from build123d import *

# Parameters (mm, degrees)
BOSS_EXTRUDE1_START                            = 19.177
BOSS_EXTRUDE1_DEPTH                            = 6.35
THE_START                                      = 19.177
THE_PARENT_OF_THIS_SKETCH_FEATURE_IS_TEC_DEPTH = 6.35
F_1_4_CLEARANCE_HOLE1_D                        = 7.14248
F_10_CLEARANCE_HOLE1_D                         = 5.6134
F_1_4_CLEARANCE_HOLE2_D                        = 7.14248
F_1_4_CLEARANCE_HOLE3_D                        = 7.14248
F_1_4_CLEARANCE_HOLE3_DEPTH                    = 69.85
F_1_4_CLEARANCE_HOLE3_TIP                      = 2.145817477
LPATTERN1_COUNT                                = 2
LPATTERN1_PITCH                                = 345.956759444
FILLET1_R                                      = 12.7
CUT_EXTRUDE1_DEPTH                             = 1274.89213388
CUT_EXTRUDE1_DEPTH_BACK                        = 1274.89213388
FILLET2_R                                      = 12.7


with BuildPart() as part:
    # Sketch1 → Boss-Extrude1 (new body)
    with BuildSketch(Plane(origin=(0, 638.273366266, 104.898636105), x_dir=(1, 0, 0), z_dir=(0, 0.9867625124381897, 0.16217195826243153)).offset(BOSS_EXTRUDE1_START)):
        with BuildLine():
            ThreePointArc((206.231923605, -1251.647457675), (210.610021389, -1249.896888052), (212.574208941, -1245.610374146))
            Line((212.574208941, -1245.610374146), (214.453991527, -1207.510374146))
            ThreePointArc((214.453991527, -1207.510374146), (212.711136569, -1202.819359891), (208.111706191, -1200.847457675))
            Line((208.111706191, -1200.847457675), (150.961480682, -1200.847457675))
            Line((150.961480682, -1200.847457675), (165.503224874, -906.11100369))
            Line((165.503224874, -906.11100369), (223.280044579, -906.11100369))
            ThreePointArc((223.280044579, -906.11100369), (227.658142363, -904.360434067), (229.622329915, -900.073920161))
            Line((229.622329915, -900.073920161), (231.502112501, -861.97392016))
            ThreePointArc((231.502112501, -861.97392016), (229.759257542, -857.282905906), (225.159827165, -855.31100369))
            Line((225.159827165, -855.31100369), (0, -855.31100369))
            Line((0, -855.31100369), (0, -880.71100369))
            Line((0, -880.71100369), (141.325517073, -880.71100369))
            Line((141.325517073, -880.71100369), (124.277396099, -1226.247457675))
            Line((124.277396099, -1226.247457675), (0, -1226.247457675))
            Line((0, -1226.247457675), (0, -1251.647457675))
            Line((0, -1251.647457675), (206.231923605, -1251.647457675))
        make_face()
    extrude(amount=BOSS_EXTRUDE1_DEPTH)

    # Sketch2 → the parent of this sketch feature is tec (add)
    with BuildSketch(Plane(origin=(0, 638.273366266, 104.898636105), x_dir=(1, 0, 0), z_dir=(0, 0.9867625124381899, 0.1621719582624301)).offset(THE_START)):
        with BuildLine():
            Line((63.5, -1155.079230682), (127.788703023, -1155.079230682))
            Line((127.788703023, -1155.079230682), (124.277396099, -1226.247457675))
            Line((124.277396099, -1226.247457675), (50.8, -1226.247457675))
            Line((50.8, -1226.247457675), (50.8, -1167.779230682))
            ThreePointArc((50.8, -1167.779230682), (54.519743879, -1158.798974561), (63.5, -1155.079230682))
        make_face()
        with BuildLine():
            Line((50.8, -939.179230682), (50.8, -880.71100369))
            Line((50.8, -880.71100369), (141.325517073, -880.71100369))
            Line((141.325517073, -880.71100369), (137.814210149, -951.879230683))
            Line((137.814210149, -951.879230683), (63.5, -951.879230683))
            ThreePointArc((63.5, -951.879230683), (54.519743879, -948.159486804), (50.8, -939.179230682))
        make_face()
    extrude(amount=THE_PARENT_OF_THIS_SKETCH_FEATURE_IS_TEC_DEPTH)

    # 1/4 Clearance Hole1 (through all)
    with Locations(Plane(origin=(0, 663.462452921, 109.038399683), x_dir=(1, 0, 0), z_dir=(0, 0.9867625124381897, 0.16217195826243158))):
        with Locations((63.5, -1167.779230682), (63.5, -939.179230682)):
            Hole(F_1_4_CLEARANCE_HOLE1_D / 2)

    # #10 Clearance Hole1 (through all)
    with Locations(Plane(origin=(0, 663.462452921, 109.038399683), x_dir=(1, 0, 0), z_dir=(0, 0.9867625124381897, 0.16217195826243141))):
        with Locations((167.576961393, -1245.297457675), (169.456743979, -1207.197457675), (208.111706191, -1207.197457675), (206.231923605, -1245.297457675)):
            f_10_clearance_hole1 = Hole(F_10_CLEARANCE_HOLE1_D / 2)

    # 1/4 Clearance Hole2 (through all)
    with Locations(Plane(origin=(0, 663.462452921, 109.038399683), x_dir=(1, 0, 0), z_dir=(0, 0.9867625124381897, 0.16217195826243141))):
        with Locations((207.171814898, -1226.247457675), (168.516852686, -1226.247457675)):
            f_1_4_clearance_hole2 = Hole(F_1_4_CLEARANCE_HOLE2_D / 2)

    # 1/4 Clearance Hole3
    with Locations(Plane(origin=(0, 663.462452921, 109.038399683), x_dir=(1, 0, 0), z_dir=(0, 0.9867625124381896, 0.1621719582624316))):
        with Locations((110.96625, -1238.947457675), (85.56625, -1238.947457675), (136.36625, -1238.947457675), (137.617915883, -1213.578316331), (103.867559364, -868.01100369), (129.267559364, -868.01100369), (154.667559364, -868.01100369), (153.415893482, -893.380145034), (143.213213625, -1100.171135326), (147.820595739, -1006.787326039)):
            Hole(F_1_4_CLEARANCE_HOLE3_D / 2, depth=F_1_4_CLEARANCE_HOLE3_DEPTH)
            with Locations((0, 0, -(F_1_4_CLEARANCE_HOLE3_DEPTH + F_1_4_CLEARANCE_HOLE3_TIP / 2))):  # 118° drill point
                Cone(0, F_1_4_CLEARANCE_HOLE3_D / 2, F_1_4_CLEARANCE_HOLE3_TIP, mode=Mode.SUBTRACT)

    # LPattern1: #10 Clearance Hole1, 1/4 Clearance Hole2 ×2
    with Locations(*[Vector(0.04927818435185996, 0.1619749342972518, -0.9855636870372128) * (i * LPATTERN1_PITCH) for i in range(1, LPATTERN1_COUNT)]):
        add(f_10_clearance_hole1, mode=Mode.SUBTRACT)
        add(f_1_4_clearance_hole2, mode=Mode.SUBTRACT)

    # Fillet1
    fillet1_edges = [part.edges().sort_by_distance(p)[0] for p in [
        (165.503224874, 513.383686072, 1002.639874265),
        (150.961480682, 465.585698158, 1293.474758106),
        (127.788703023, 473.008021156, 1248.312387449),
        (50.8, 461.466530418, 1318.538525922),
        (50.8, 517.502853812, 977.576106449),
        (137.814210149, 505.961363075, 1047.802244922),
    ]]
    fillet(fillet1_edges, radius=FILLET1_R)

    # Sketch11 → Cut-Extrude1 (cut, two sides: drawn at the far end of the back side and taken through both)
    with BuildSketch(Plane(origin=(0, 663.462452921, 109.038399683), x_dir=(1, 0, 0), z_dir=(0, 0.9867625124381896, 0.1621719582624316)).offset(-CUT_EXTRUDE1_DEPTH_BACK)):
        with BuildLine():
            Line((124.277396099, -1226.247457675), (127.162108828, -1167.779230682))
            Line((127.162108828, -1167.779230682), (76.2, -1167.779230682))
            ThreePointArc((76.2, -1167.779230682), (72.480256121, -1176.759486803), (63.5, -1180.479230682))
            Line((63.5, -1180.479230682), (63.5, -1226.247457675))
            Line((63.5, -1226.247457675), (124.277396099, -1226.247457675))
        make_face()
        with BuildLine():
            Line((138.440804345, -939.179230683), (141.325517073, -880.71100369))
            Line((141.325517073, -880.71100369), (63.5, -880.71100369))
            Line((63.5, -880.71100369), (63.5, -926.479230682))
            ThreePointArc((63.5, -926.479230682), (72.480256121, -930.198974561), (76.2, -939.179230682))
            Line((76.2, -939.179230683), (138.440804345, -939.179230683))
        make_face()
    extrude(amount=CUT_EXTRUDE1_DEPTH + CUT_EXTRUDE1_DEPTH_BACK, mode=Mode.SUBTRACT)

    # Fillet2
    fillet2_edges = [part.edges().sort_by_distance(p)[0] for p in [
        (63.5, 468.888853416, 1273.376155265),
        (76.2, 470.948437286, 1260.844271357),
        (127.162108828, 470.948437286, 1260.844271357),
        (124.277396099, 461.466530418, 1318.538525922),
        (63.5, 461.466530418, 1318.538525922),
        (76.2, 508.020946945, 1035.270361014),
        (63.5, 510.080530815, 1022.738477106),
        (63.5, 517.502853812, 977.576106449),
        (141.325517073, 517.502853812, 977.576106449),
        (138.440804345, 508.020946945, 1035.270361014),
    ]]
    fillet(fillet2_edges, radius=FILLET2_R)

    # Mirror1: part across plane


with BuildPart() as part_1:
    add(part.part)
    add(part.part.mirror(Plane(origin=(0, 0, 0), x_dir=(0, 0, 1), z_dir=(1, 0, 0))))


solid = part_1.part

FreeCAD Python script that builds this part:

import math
import FreeCAD as App
import Part
import Sketcher

V = App.Vector
Q = App.Units.Quantity


def edges_at(feature, points):
    """Names of the edges that pass closest to the given points."""
    edges = feature.Shape.Edges
    near = lambda p: min(range(len(edges)), key=lambda i: edges[i].distToShape(Part.Vertex(*p))[0])
    return sorted({f"Edge{near(p) + 1}" for p in points})

doc = App.newDocument("Part")
body = doc.addObject("PartDesign::Body", "Body")

sketch1 = doc.addObject("Sketcher::SketchObject", "Sketch")
body.addObject(sketch1)
sketch1.Placement = App.Placement(V(0, 657.196511, 108.008608), App.Rotation(V(1, 0, 0), V(0, 0.162171958, -0.986762512), V(0, 0.986762512, 0.162171958), "ZXY"))
sketch1.addGeometry([
    Part.ArcOfCircle(Part.Circle(V(206, -1245, 0), V(0, 0, 1), 6), math.radians(-90), math.radians(-3)),
    Part.LineSegment(V(213, -1246, 0), V(214, -1208, 0)),
    Part.ArcOfCircle(Part.Circle(V(208, -1207, 0), V(0, 0, 1), 6), math.radians(-3), math.radians(90)),
    Part.LineSegment(V(208, -1201, 0), V(151, -1201, 0)),
    Part.LineSegment(V(151, -1201, 0), V(166, -906, 0)),
    Part.LineSegment(V(166, -906, 0), V(223, -906, 0)),
    Part.ArcOfCircle(Part.Circle(V(223, -900, 0), V(0, 0, 1), 6), math.radians(-90), math.radians(-3)),
    Part.LineSegment(V(230, -900, 0), V(232, -862, 0)),
    Part.ArcOfCircle(Part.Circle(V(225, -862, 0), V(0, 0, 1), 6), math.radians(-3), math.radians(90)),
    Part.LineSegment(V(225, -855, 0), V(0, -855, 0)),
    Part.LineSegment(V(0, -855, 0), V(0, -881, 0)),
    Part.LineSegment(V(0, -881, 0), V(141, -881, 0)),
    Part.LineSegment(V(141, -881, 0), V(124, -1226, 0)),
    Part.LineSegment(V(124, -1226, 0), V(0, -1226, 0)),
    Part.LineSegment(V(0, -1226, 0), V(0, -1252, 0)),
    Part.LineSegment(V(0, -1252, 0), V(206, -1252, 0)),
], False)
sketch1.addConstraint([
    Sketcher.Constraint("Tangent", 0, 2, 1, 1),
    Sketcher.Constraint("Tangent", 1, 2, 2, 1),
    Sketcher.Constraint("Tangent", 2, 2, 3, 1),
    Sketcher.Constraint("Coincident", 3, 2, 4, 1),
    Sketcher.Constraint("Coincident", 4, 2, 5, 1),
    Sketcher.Constraint("Tangent", 5, 2, 6, 1),
    Sketcher.Constraint("Tangent", 6, 2, 7, 1),
    Sketcher.Constraint("Tangent", 7, 2, 8, 1),
    Sketcher.Constraint("Tangent", 8, 2, 9, 1),
    Sketcher.Constraint("Coincident", 9, 2, 10, 1),
    Sketcher.Constraint("Coincident", 10, 2, 11, 1),
    Sketcher.Constraint("Coincident", 11, 2, 12, 1),
    Sketcher.Constraint("Coincident", 12, 2, 13, 1),
    Sketcher.Constraint("Coincident", 13, 2, 14, 1),
    Sketcher.Constraint("Coincident", 14, 2, 15, 1),
    Sketcher.Constraint("Tangent", 15, 2, 0, 1),
    Sketcher.Constraint("Horizontal", 3),
    Sketcher.Constraint("Horizontal", 5),
    Sketcher.Constraint("Horizontal", 9),
    Sketcher.Constraint("Vertical", 10),
    Sketcher.Constraint("Horizontal", 11),
    Sketcher.Constraint("Horizontal", 13),
    Sketcher.Constraint("Vertical", 14),
    Sketcher.Constraint("Horizontal", 15),
    Sketcher.Constraint("Equal", 0, 2),
    Sketcher.Constraint("Equal", 2, 6),
    Sketcher.Constraint("Equal", 6, 8),
    Sketcher.Constraint("PointOnObject", 9, 2, -2),
    Sketcher.Constraint("PointOnObject", 13, 2, -2),
    Sketcher.Constraint("Parallel", 1, 4),
    Sketcher.Constraint("Parallel", 4, 7),
    Sketcher.Constraint("Parallel", 7, 12),
    Sketcher.Constraint("Equal", 10, 14),
    Sketcher.Constraint("Equal", 1, 7),
    Sketcher.Constraint("DistanceY", 10, 2, 10, 1, Q("1 in")),
    Sketcher.Constraint("Radius", 0, Q("0.25 in")),
    Sketcher.Constraint("DistanceY", 5, 2, 8, 2, Q("2 in")),
    Sketcher.Constraint("DistanceX", 5, 1, 5, 2, 57.77682),
    Sketcher.Constraint("Distance", 12, 345.956759),
    Sketcher.Constraint("DistanceX", 3, 2, 3, 1, 57.150226),
    Sketcher.Constraint("DistanceX", 9, 2, 9, 1, 225.159827),
    Sketcher.Constraint("DistanceX", 11, 1, 11, 2, 141.325517),
    Sketcher.Constraint("DistanceX", 13, 2, 13, 1, 124.277396),
    Sketcher.Constraint("DistanceY", 6, 2, -1, 1, 900.073919),
])
pad1 = doc.addObject("PartDesign::Pad", "Pad")
body.addObject(pad1)
pad1.Profile = sketch1
pad1.Length = Q("0.25 in")

sketch2 = doc.addObject("Sketcher::SketchObject", "Sketch001")
body.addObject(sketch2)
sketch2.Placement = App.Placement(V(0, 657.196511, 108.008608), App.Rotation(V(1, 0, 0), V(0, 0.162171958, -0.986762512), V(0, 0.986762512, 0.162171958), "ZXY"))
sketch2.addGeometry([
    Part.LineSegment(V(128, -1155, 0), V(64, -1155, 0)),
    Part.ArcOfCircle(Part.Circle(V(64, -1168, 0), V(0, 0, 1), 13), math.radians(90), math.radians(180)),
    Part.LineSegment(V(51, -1168, 0), V(51, -1226, 0)),
    Part.LineSegment(V(51, -1226, 0), V(124, -1226, 0)),
    Part.LineSegment(V(124, -1226, 0), V(128, -1155, 0)),
    Part.LineSegment(V(51, -881, 0), V(51, -939, 0)),
    Part.ArcOfCircle(Part.Circle(V(64, -939, 0), V(0, 0, 1), 13), math.radians(180), math.radians(270)),
    Part.LineSegment(V(64, -952, 0), V(138, -952, 0)),
    Part.LineSegment(V(138, -952, 0), V(141, -881, 0)),
    Part.LineSegment(V(141, -881, 0), V(51, -881, 0)),
], False)
sketch2.addConstraint([
    Sketcher.Constraint("Tangent", 0, 2, 1, 1),
    Sketcher.Constraint("Tangent", 1, 2, 2, 1),
    Sketcher.Constraint("Coincident", 2, 2, 3, 1),
    Sketcher.Constraint("Coincident", 3, 2, 4, 1),
    Sketcher.Constraint("Coincident", 4, 2, 0, 1),
    Sketcher.Constraint("Tangent", 5, 2, 6, 1),
    Sketcher.Constraint("Tangent", 6, 2, 7, 1),
    Sketcher.Constraint("Coincident", 7, 2, 8, 1),
    Sketcher.Constraint("Coincident", 8, 2, 9, 1),
    Sketcher.Constraint("Coincident", 9, 2, 5, 1),
    Sketcher.Constraint("Horizontal", 0),
    Sketcher.Constraint("Vertical", 2),
    Sketcher.Constraint("Horizontal", 3),
    Sketcher.Constraint("Vertical", 5),
    Sketcher.Constraint("Horizontal", 7),
    Sketcher.Constraint("Horizontal", 9),
    Sketcher.Constraint("Equal", 1, 6),
    Sketcher.Constraint("Parallel", 4, 8),
    Sketcher.Constraint("Vertical", 1, 3, 6, 3),
    Sketcher.Constraint("Equal", 2, 5),
    Sketcher.Constraint("Radius", 1, Q("0.5 in")),
    Sketcher.Constraint("DistanceX", -1, 1, 1, 2, Q("2 in")),
    Sketcher.Constraint("DistanceY", 1, 3, 6, 3, Q("9 in")),
    Sketcher.Constraint("DistanceX", 7, 1, 7, 2, 74.31421),
    Sketcher.Constraint("DistanceX", 0, 2, 0, 1, 64.288703),
    Sketcher.Constraint("DistanceX", 3, 1, 3, 2, 73.477396),
    Sketcher.Constraint("DistanceY", 2, 2, 2, 1, 58.468227),
    Sketcher.Constraint("DistanceY", 1, 3, -1, 1, 1167.77923),
])
pad2 = doc.addObject("PartDesign::Pad", "Pad001")
body.addObject(pad2)
pad2.Profile = sketch2
pad2.Length = Q("0.25 in")

sketch3 = doc.addObject("Sketcher::SketchObject", "Sketch002")
body.addObject(sketch3)
sketch3.Placement = App.Placement(V(0, 663.462453, 109.0384), App.Rotation(V(1, 0, 0), V(0, 0.162171958, -0.986762512), V(0, 0.986762512, 0.162171958), "ZXY"))
sketch3.addGeometry([
    Part.Circle(V(63.5, -1167.8, 0), V(0, 0, 1), 3.6),
    Part.Circle(V(63.5, -939.2, 0), V(0, 0, 1), 3.6),
], False)
sketch3.addConstraint([
    Sketcher.Constraint("Equal", 0, 1),
    Sketcher.Constraint("Vertical", 0, 3, 1, 3),
    Sketcher.Constraint("DistanceY", 0, 3, 1, 3, Q("9 in")),
    Sketcher.Constraint("Diameter", 0, Q("0.2812 in")),
    Sketcher.Constraint("DistanceX", -1, 1, 0, 3, Q("2.5 in")),
    Sketcher.Constraint("DistanceY", 0, 3, -1, 1, 1167.77923),
])
doc.recompute()
hole = doc.addObject("PartDesign::Hole", "Hole")
body.addObject(hole)
hole.Profile = sketch3
hole.ThreadType = "None"
hole.Diameter = Q("0.2812 in")
hole.DepthType = "ThroughAll"

sketch4 = doc.addObject("Sketcher::SketchObject", "Sketch003")
body.addObject(sketch4)
sketch4.Placement = App.Placement(V(0, 663.462453, 109.0384), App.Rotation(V(1, 0, 0), V(0, 0.162171958, -0.986762512), V(0, 0.986762512, 0.162171958), "ZXY"))
sketch4.addGeometry([
    Part.Circle(V(167.6, -1245.3, 0), V(0, 0, 1), 2.8),
    Part.Circle(V(169.5, -1207.2, 0), V(0, 0, 1), 2.8),
    Part.Circle(V(208.1, -1207.2, 0), V(0, 0, 1), 2.8),
    Part.Circle(V(206.2, -1245.3, 0), V(0, 0, 1), 2.8),
], False)
sketch4.addConstraint([
    Sketcher.Constraint("Equal", 0, 1),
    Sketcher.Constraint("Equal", 1, 2),
    Sketcher.Constraint("Equal", 2, 3),
    Sketcher.Constraint("Horizontal", 1, 3, 2, 3),
    Sketcher.Constraint("Horizontal", 0, 3, 3, 3),
    Sketcher.Constraint("Diameter", 0, Q("0.221 in")),
    Sketcher.Constraint("DistanceY", 0, 3, 1, 3, Q("1.5 in")),
    Sketcher.Constraint("DistanceX", -1, 1, 0, 3, 167.576961),
    Sketcher.Constraint("DistanceX", 1, 3, 3, 3, 36.77518),
    Sketcher.Constraint("DistanceY", 0, 3, -1, 1, 1245.297456),
    Sketcher.Constraint("DistanceX", -1, 1, 1, 3, 169.456744),
    Sketcher.Constraint("DistanceX", -1, 1, 2, 3, 208.111706),
])
doc.recompute()
hole2 = doc.addObject("PartDesign::Hole", "Hole001")
body.addObject(hole2)
hole2.Profile = sketch4
hole2.ThreadType = "None"
hole2.Diameter = Q("0.221 in")
hole2.DepthType = "ThroughAll"

sketch5 = doc.addObject("Sketcher::SketchObject", "Sketch004")
body.addObject(sketch5)
sketch5.Placement = App.Placement(V(0, 663.462453, 109.0384), App.Rotation(V(1, 0, 0), V(0, 0.162171958, -0.986762512), V(0, 0.986762512, 0.162171958), "ZXY"))
sketch5.addGeometry([
    Part.Circle(V(207.2, -1226.2, 0), V(0, 0, 1), 3.6),
    Part.Circle(V(168.5, -1226.2, 0), V(0, 0, 1), 3.6),
], False)
sketch5.addConstraint([
    Sketcher.Constraint("Equal", 0, 1),
    Sketcher.Constraint("Horizontal", 0, 3, 1, 3),
    Sketcher.Constraint("Diameter", 0, Q("0.2812 in")),
    Sketcher.Constraint("DistanceX", -1, 1, 0, 3, 207.171815),
    Sketcher.Constraint("DistanceY", 0, 3, -1, 1, 1226.247457),
    Sketcher.Constraint("DistanceX", -1, 1, 1, 3, 168.516853),
])
doc.recompute()
hole3 = doc.addObject("PartDesign::Hole", "Hole002")
body.addObject(hole3)
hole3.Profile = sketch5
hole3.ThreadType = "None"
hole3.Diameter = Q("0.2812 in")
hole3.DepthType = "ThroughAll"

sketch6 = doc.addObject("Sketcher::SketchObject", "Sketch005")
body.addObject(sketch6)
sketch6.Placement = App.Placement(V(0, 663.462453, 109.0384), App.Rotation(V(1, 0, 0), V(0, 0.162171958, -0.986762512), V(0, 0.986762512, 0.162171958), "ZXY"))
sketch6.addGeometry([
    Part.Circle(V(111, -1238.9, 0), V(0, 0, 1), 3.6),
    Part.Circle(V(85.6, -1238.9, 0), V(0, 0, 1), 3.6),
    Part.Circle(V(136.4, -1238.9, 0), V(0, 0, 1), 3.6),
    Part.Circle(V(137.6, -1213.6, 0), V(0, 0, 1), 3.6),
    Part.Circle(V(103.9, -868, 0), V(0, 0, 1), 3.6),
    Part.Circle(V(129.3, -868, 0), V(0, 0, 1), 3.6),
    Part.Circle(V(154.7, -868, 0), V(0, 0, 1), 3.6),
    Part.Circle(V(153.4, -893.4, 0), V(0, 0, 1), 3.6),
    Part.Circle(V(143.2, -1100.2, 0), V(0, 0, 1), 3.6),
    Part.Circle(V(147.8, -1006.8, 0), V(0, 0, 1), 3.6),
], False)
sketch6.addConstraint([
    Sketcher.Constraint("Equal", 0, 1),
    Sketcher.Constraint("Equal", 1, 2),
    Sketcher.Constraint("Equal", 2, 3),
    Sketcher.Constraint("Equal", 3, 4),
    Sketcher.Constraint("Equal", 4, 5),
    Sketcher.Constraint("Equal", 5, 6),
    Sketcher.Constraint("Equal", 6, 7),
    Sketcher.Constraint("Equal", 7, 8),
    Sketcher.Constraint("Equal", 8, 9),
    Sketcher.Constraint("Horizontal", 0, 3, 1, 3),
    Sketcher.Constraint("Horizontal", 1, 3, 2, 3),
    Sketcher.Constraint("Horizontal", 4, 3, 5, 3),
    Sketcher.Constraint("Horizontal", 5, 3, 6, 3),
    Sketcher.Constraint("DistanceX", 1, 3, 0, 3, Q("1 in")),
    Sketcher.Constraint("DistanceX", 0, 3, 2, 3, Q("1 in")),
    Sketcher.Constraint("DistanceX", 4, 3, 5, 3, Q("1 in")),
    Sketcher.Constraint("DistanceX", 5, 3, 6, 3, Q("1 in")),
    Sketcher.Constraint("Diameter", 0, Q("0.2812 in")),
    Sketcher.Constraint("DistanceX", -1, 1, 0, 3, 110.96625),
    Sketcher.Constraint("DistanceX", -1, 1, 4, 3, 103.867559),
    Sketcher.Constraint("DistanceY", 2, 3, 3, 3, 25.369141),
    Sketcher.Constraint("DistanceY", 7, 3, 6, 3, 25.369141),
    Sketcher.Constraint("DistanceY", 3, 3, 7, 3, 320.198171),
    Sketcher.Constraint("DistanceY", 3, 3, 8, 3, 113.407181),
    Sketcher.Constraint("DistanceX", 8, 3, 7, 3, 10.20268),
    Sketcher.Constraint("DistanceY", 8, 3, 9, 3, 93.383809),
    Sketcher.Constraint("DistanceY", 0, 3, -1, 1, 1238.947456),
    Sketcher.Constraint("DistanceX", -1, 1, 3, 3, 137.617916),
    Sketcher.Constraint("DistanceX", -1, 1, 7, 3, 153.415893),
    Sketcher.Constraint("DistanceX", -1, 1, 9, 3, 147.820596),
])
doc.recompute()
hole4 = doc.addObject("PartDesign::Hole", "Hole003")
body.addObject(hole4)
hole4.Profile = sketch6
hole4.ThreadType = "None"
hole4.Diameter = Q("0.2812 in")
hole4.DepthType = "Dimension"
hole4.Depth = Q("2.75 in")
hole4.DrillPoint = "Angled"
hole4.DrillPointAngle = 118
doc.recompute()

datumline = doc.addObject("PartDesign::Line", "DatumLine")
body.addObject(datumline)
datumline.Placement = App.Placement(V(0, 0, 0), App.Rotation(V(0, 0, 1), V(0.049278184, 0.161974934, -0.985563687)))
linearpattern = doc.addObject("PartDesign::LinearPattern", "LinearPattern")
body.addObject(linearpattern)
linearpattern.Originals = [hole2, hole3]
linearpattern.Direction = (datumline, [""])
linearpattern.Mode = "offset"
linearpattern.Offset = 345.956759
linearpattern.Occurrences = 2
body.Tip = linearpattern
doc.recompute()

fillet = doc.addObject("PartDesign::Fillet", "Fillet")
body.addObject(fillet)
fillet.Base = (linearpattern, edges_at(linearpattern, [
    (165.503, 513.384, 1002.64),
    (150.961, 465.586, 1293.475),
    (127.789, 473.008, 1248.312),
    (50.8, 461.467, 1318.539),
    (50.8, 517.503, 977.576),
    (137.814, 505.961, 1047.802),
]))
fillet.Radius = Q("0.5 in")

sketch7 = doc.addObject("Sketcher::SketchObject", "Sketch006")
body.addObject(sketch7)
sketch7.Placement = App.Placement(V(0, 663.462452, 109.038399), App.Rotation(V(1, 0, 0), V(0, 0.162171958, -0.986762512), V(0, 0.986762512, 0.162171958), "ZXY"))
sketch7.addGeometry([
    Part.LineSegment(V(124, -1226, 0), V(127, -1168, 0)),
    Part.LineSegment(V(127, -1168, 0), V(76, -1168, 0)),
    Part.ArcOfCircle(Part.Circle(V(64, -1168, 0), V(0, 0, 1), 13), math.radians(-90), math.radians(0)),
    Part.LineSegment(V(64, -1180, 0), V(64, -1226, 0)),
    Part.LineSegment(V(64, -1226, 0), V(124, -1226, 0)),
    Part.LineSegment(V(138, -939, 0), V(141, -881, 0)),
    Part.LineSegment(V(141, -881, 0), V(64, -881, 0)),
    Part.LineSegment(V(64, -881, 0), V(64, -926, 0)),
    Part.ArcOfCircle(Part.Circle(V(64, -939, 0), V(0, 0, 1), 13), math.radians(0), math.radians(90)),
    Part.LineSegment(V(76, -939, 0), V(138, -939, 0)),
], False)
sketch7.addConstraint([
    Sketcher.Constraint("Coincident", 0, 2, 1, 1),
    Sketcher.Constraint("Coincident", 1, 2, 2, 2),
    Sketcher.Constraint("Coincident", 2, 1, 3, 1),
    Sketcher.Constraint("Coincident", 3, 2, 4, 1),
    Sketcher.Constraint("Coincident", 4, 2, 0, 1),
    Sketcher.Constraint("Coincident", 5, 2, 6, 1),
    Sketcher.Constraint("Coincident", 6, 2, 7, 1),
    Sketcher.Constraint("Coincident", 7, 2, 8, 2),
    Sketcher.Constraint("Coincident", 8, 1, 9, 1),
    Sketcher.Constraint("Coincident", 9, 2, 5, 1),
    Sketcher.Constraint("Horizontal", 1),
    Sketcher.Constraint("Vertical", 3),
    Sketcher.Constraint("Horizontal", 4),
    Sketcher.Constraint("Horizontal", 6),
    Sketcher.Constraint("Vertical", 7),
    Sketcher.Constraint("Horizontal", 9),
    Sketcher.Constraint("Equal", 2, 8),
    Sketcher.Constraint("Parallel", 0, 5),
    Sketcher.Constraint("Horizontal", 2, 3, 0, 2),
    Sketcher.Constraint("Vertical", 2, 3, 8, 3),
    Sketcher.Constraint("Vertical", 8, 3, 2, 1),
    Sketcher.Constraint("Vertical", 3, 2, 6, 2),
    Sketcher.Constraint("Equal", 3, 7),
    Sketcher.Constraint("Equal", 0, 5),
    Sketcher.Constraint("Radius", 2, Q("0.5 in")),
    Sketcher.Constraint("DistanceX", -1, 1, 1, 2, Q("3 in")),
    Sketcher.Constraint("DistanceY", 2, 3, 8, 3, Q("9 in")),
    Sketcher.Constraint("DistanceX", 1, 2, 1, 1, 50.962109),
    Sketcher.Constraint("DistanceX", 4, 1, 4, 2, 60.777396),
    Sketcher.Constraint("DistanceX", 6, 2, 6, 1, 77.825517),
    Sketcher.Constraint("DistanceY", 3, 2, 3, 1, 45.768227),
    Sketcher.Constraint("DistanceY", 2, 3, -1, 1, 1167.77923),
])
pocket1 = doc.addObject("PartDesign::Pocket", "Pocket")
body.addObject(pocket1)
pocket1.Profile = sketch7
pocket1.Type = "ThroughAll"
pocket1.Midplane = True
doc.recompute()

fillet2 = doc.addObject("PartDesign::Fillet", "Fillet001")
body.addObject(fillet2)
fillet2.Base = (pocket1, edges_at(pocket1, [
    (63.5, 468.889, 1273.376),
    (76.2, 470.948, 1260.844),
    (127.162, 470.948, 1260.844),
    (124.277, 461.467, 1318.539),
    (63.5, 461.467, 1318.539),
    (76.2, 508.021, 1035.27),
    (63.5, 510.081, 1022.738),
    (63.5, 517.503, 977.576),
    (141.326, 517.503, 977.576),
    (138.441, 508.021, 1035.27),
]))
fillet2.Radius = Q("0.5 in")
body2 = doc.addObject("PartDesign::Body", "Body001")
doc.recompute()

body2.BaseFeature = body
doc.recompute()

mirroring = doc.addObject("Part::Mirroring", "Mirroring")
mirroring.Source = body
mirroring.Base = V(0, 0, 0)
mirroring.Normal = V(1, 0, 0)
body3 = doc.addObject("PartDesign::Body", "Body002")
body3.BaseFeature = mirroring
boolean = doc.addObject("PartDesign::Boolean", "Boolean")
body2.addObject(boolean)
boolean.Type = "Fuse"
boolean.addObjects([body3])
doc.recompute()
mirroring.Visibility = False

doc.recompute()
